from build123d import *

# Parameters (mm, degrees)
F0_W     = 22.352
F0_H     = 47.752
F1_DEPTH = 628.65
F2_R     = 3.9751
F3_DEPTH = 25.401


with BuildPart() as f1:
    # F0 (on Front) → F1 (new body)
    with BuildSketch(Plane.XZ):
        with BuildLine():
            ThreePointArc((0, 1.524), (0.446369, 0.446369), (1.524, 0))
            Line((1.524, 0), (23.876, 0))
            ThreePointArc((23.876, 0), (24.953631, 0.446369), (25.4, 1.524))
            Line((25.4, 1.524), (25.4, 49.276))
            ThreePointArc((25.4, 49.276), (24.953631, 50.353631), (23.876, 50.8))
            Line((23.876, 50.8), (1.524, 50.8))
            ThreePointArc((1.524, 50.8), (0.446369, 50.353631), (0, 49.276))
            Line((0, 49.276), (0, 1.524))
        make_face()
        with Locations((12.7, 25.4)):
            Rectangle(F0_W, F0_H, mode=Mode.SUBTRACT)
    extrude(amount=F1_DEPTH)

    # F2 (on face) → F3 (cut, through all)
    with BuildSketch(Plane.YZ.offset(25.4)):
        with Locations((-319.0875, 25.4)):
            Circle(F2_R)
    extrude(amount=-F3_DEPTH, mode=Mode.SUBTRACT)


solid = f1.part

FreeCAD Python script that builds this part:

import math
import FreeCAD as App
import Part
import Sketcher
Q = App.Units.Quantity

doc = App.newDocument("Part")
body = doc.addObject("PartDesign::Body", "Body")

# Sketch on XZ plane
sketch1 = body.newObject("Sketcher::SketchObject", "Sketch")
sketch1.AttachmentSupport = (doc.getObject("XZ_Plane"), [""])
sketch1.MapMode = "FlatFace"
sketch1.addGeometry(Part.ArcOfCircle(Part.Circle(App.Vector(1.5, 1.5, 0), App.Vector(0, 0, 1), 1.5), math.radians(180), math.radians(270)), False)
sketch1.addGeometry(Part.LineSegment(App.Vector(1.5, 0, 0), App.Vector(23.9, 0, 0)), False)
sketch1.addGeometry(Part.ArcOfCircle(Part.Circle(App.Vector(23.9, 1.5, 0), App.Vector(0, 0, 1), 1.5), math.radians(-90), math.radians(0)), False)
sketch1.addGeometry(Part.LineSegment(App.Vector(25.4, 1.5, 0), App.Vector(25.4, 49.3, 0)), False)
sketch1.addGeometry(Part.ArcOfCircle(Part.Circle(App.Vector(23.9, 49.3, 0), App.Vector(0, 0, 1), 1.5), math.radians(0), math.radians(90)), False)
sketch1.addGeometry(Part.LineSegment(App.Vector(23.9, 50.8, 0), App.Vector(1.5, 50.8, 0)), False)
sketch1.addGeometry(Part.ArcOfCircle(Part.Circle(App.Vector(1.5, 49.3, 0), App.Vector(0, 0, 1), 1.5), math.radians(90), math.radians(180)), False)
sketch1.addGeometry(Part.LineSegment(App.Vector(0, 49.3, 0), App.Vector(0, 1.5, 0)), False)
sketch1.addGeometry(Part.LineSegment(App.Vector(23.9, 1.5, 0), App.Vector(1.5, 1.5, 0)), False)
sketch1.addGeometry(Part.LineSegment(App.Vector(1.5, 1.5, 0), App.Vector(1.5, 49.3, 0)), False)
sketch1.addGeometry(Part.LineSegment(App.Vector(1.5, 49.3, 0), App.Vector(23.9, 49.3, 0)), False)
sketch1.addGeometry(Part.LineSegment(App.Vector(23.9, 49.3, 0), App.Vector(23.9, 1.5, 0)), False)
sketch1.addConstraint(Sketcher.Constraint("Tangent", 0, 2, 1, 1))
sketch1.addConstraint(Sketcher.Constraint("Tangent", 1, 2, 2, 1))
sketch1.addConstraint(Sketcher.Constraint("Tangent", 2, 2, 3, 1))
sketch1.addConstraint(Sketcher.Constraint("Tangent", 3, 2, 4, 1))
sketch1.addConstraint(Sketcher.Constraint("Tangent", 4, 2, 5, 1))
sketch1.addConstraint(Sketcher.Constraint("Tangent", 5, 2, 6, 1))
sketch1.addConstraint(Sketcher.Constraint("Tangent", 6, 2, 7, 1))
sketch1.addConstraint(Sketcher.Constraint("Tangent", 7, 2, 0, 1))
sketch1.addConstraint(Sketcher.Constraint("Coincident", 8, 2, 9, 1))
sketch1.addConstraint(Sketcher.Constraint("Coincident", 9, 2, 10, 1))
sketch1.addConstraint(Sketcher.Constraint("Coincident", 10, 2, 11, 1))
sketch1.addConstraint(Sketcher.Constraint("Coincident", 11, 2, 8, 1))
sketch1.addConstraint(Sketcher.Constraint("Horizontal", 1))
sketch1.addConstraint(Sketcher.Constraint("Vertical", 3))
sketch1.addConstraint(Sketcher.Constraint("Horizontal", 5))
sketch1.addConstraint(Sketcher.Constraint("Vertical", 7))
sketch1.addConstraint(Sketcher.Constraint("Horizontal", 8))
sketch1.addConstraint(Sketcher.Constraint("Vertical", 9))
sketch1.addConstraint(Sketcher.Constraint("Horizontal", 10))
sketch1.addConstraint(Sketcher.Constraint("Vertical", 11))
sketch1.addConstraint(Sketcher.Constraint("Coincident", 8, 2, 0, 3))
sketch1.addConstraint(Sketcher.Constraint("Coincident", 9, 2, 6, 3))
sketch1.addConstraint(Sketcher.Constraint("Coincident", 10, 2, 4, 3))
sketch1.addConstraint(Sketcher.Constraint("Equal", 0, 2))
sketch1.addConstraint(Sketcher.Constraint("PointOnObject", 0, 2, -1))
sketch1.addConstraint(Sketcher.Constraint("PointOnObject", 6, 2, -2))
sketch1.addConstraint(Sketcher.Constraint("Radius", 0, Q("0.06 in")))
sketch1.addConstraint(Sketcher.Constraint("DistanceX", -1, 1, 2, 2, Q("1 in")))
sketch1.addConstraint(Sketcher.Constraint("DistanceY", -1, 1, 4, 2, Q("2 in")))
pad1 = body.newObject("PartDesign::Pad", "Pad")
pad1.Profile = sketch1
pad1.Length = Q("24.75 in")

# Sketch on YZ plane
sketch2 = body.newObject("Sketcher::SketchObject", "Sketch001")
sketch2.AttachmentSupport = (doc.getObject("YZ_Plane"), [""])
sketch2.MapMode = "FlatFace"
sketch2.AttachmentOffset = App.Placement(App.Vector(0, 0, 1 * 25.4), App.Rotation())
sketch2.addGeometry(Part.Circle(App.Vector(-319.1, 25.4, 0), App.Vector(0, 0, 1), 4), False)
sketch2.addConstraint(Sketcher.Constraint("Diameter", 0, Q("0.313 in")))
sketch2.addConstraint(Sketcher.Constraint("DistanceY", -1, 1, 0, 3, Q("1 in")))
sketch2.addConstraint(Sketcher.Constraint("DistanceX", 0, 3, -1, 1, Q("12.5625 in")))
pocket1 = body.newObject("PartDesign::Pocket", "Pocket")
pocket1.Profile = sketch2
pocket1.Type = "ThroughAll"

doc.recompute()
